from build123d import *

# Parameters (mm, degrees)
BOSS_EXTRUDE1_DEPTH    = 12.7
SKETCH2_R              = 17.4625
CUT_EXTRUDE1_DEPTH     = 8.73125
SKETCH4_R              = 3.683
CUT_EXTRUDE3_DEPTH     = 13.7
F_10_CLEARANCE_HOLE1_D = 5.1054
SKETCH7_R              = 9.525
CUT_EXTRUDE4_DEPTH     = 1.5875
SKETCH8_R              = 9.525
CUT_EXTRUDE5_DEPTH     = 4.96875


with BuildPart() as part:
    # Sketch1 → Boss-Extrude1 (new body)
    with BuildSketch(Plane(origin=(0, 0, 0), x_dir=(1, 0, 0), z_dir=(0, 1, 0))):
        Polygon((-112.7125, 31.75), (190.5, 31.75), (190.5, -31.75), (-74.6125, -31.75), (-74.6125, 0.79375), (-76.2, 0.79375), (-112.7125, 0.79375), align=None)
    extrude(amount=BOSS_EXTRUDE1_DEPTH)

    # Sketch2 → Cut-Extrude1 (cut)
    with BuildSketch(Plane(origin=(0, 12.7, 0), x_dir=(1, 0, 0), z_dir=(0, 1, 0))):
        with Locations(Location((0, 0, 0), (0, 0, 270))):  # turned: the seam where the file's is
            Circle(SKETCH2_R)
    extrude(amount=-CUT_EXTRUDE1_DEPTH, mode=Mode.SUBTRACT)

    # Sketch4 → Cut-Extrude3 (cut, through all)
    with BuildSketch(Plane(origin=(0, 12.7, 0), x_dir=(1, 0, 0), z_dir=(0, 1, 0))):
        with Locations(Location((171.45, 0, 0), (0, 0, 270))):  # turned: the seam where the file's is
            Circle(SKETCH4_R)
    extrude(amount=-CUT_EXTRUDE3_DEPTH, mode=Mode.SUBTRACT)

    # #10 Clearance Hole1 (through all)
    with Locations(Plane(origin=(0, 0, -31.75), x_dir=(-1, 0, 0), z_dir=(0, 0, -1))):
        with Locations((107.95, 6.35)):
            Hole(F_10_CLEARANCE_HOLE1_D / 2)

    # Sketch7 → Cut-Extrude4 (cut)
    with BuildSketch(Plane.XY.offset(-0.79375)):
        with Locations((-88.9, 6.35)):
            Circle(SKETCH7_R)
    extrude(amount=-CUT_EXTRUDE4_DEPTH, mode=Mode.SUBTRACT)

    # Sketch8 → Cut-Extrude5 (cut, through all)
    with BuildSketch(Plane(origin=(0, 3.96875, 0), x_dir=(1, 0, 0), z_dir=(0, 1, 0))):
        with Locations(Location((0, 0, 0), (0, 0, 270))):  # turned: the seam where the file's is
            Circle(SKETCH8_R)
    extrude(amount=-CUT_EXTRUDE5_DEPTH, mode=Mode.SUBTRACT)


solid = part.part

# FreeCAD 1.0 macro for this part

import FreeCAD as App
import Part
import Sketcher

V = App.Vector
Q = App.Units.Quantity


def add_polygon(sketch, points):
    """Adds a closed chain of lines whose ends are joined by coincident constraints."""
    first, n = sketch.GeometryCount, len(points)
    for a, b in zip(points, points[1:] + points[:1]):
        sketch.addGeometry(Part.LineSegment(App.Vector(*a, 0), App.Vector(*b, 0)), False)
    for i in range(n):
        sketch.addConstraint(Sketcher.Constraint("Coincident", first + i, 2, first + (i + 1) % n, 1))

doc = App.newDocument("Part")
body = doc.addObject("PartDesign::Body", "Body")

# Sketch on XZ plane
sketch1 = body.newObject("Sketcher::SketchObject", "Sketch")
sketch1.AttachmentSupport = (doc.getObject("XZ_Plane"), [""])
sketch1.MapMode = "FlatFace"
add_polygon(sketch1, [(190, -32), (-113, -32), (-113, -1), (-75, -1), (-75, 32), (190, 32)])  # lines 0-5
sketch1.addConstraint([
    Sketcher.Constraint("Horizontal", 0),
    Sketcher.Constraint("Vertical", 1),
    Sketcher.Constraint("Horizontal", 2),
    Sketcher.Constraint("Vertical", 3),
    Sketcher.Constraint("Horizontal", 4),
    Sketcher.Constraint("Vertical", 5),
    Sketcher.Constraint("DistanceX", 2, 1, 2, 2, Q("1.5 in")),
    Sketcher.Constraint("DistanceY", 5, 2, 5, 1, Q("2.5 in")),
    Sketcher.Constraint("DistanceX", -1, 1, 4, 2, Q("7.5 in")),
    Sketcher.Constraint("DistanceX", 0, 2, 0, 1, Q("11.9375 in")),
    Sketcher.Constraint("DistanceY", 1, 1, 1, 2, Q("1.21875 in")),
    Sketcher.Constraint("DistanceY", 0, 2, -1, 1, Q("1.25 in")),
])
pad1 = body.newObject("PartDesign::Pad", "Pad")
pad1.Profile = sketch1
pad1.Length = Q("0.5 in")
pad1.Reversed = True

# Sketch on XZ plane
sketch2 = body.newObject("Sketcher::SketchObject", "Sketch001")
sketch2.AttachmentSupport = (doc.getObject("XZ_Plane"), [""])
sketch2.MapMode = "FlatFace"
sketch2.AttachmentOffset = App.Placement(V(0, 0, -0.5 * 25.4), App.Rotation())
sketch2.addGeometry(Part.Circle(V(0, 0, 0), V(0, 0, 1), 17), False)
sketch2.addConstraint([
    Sketcher.Constraint("Coincident", 0, 3, -1, 1),
    Sketcher.Constraint("Diameter", 0, Q("1.375 in")),
])
pocket1 = body.newObject("PartDesign::Pocket", "Pocket")
pocket1.Profile = sketch2
pocket1.Length = Q("0.34375 in")
pocket1.Reversed = True

# Sketch on XZ plane
sketch3 = body.newObject("Sketcher::SketchObject", "Sketch002")
sketch3.AttachmentSupport = (doc.getObject("XZ_Plane"), [""])
sketch3.MapMode = "FlatFace"
sketch3.AttachmentOffset = App.Placement(V(0, 0, -0.5 * 25.4), App.Rotation())
sketch3.addGeometry(Part.Circle(V(171.4, 0, 0), V(0, 0, 1), 3.7), False)
sketch3.addConstraint([
    Sketcher.Constraint("PointOnObject", 0, 3, -1),
    Sketcher.Constraint("Diameter", 0, Q("0.29 in")),
    Sketcher.Constraint("DistanceX", -1, 1, 0, 3, Q("6.75 in")),
])
pocket2 = body.newObject("PartDesign::Pocket", "Pocket001")
pocket2.Profile = sketch3
pocket2.Type = "ThroughAll"
pocket2.Reversed = True

# Sketch on XY plane
sketch4 = body.newObject("Sketcher::SketchObject", "Sketch003")
sketch4.AttachmentSupport = (doc.getObject("XY_Plane"), [""])
sketch4.MapMode = "FlatFace"
sketch4.AttachmentOffset = App.Placement(V(0, 0, -1.25 * 25.4), App.Rotation())
sketch4.addGeometry(Part.Circle(V(-108, 6.3, 0), V(0, 0, 1), 2.6), False)
sketch4.addConstraint([
    Sketcher.Constraint("Diameter", 0, Q("0.201 in")),
    Sketcher.Constraint("DistanceX", 0, 3, -1, 1, Q("4.25 in")),
    Sketcher.Constraint("DistanceY", -1, 1, 0, 3, Q("0.25 in")),
])
doc.recompute()
hole = body.newObject("PartDesign::Hole", "Hole")
hole.Profile = sketch4
hole.ThreadType = "None"
hole.Diameter = Q("0.201 in")
hole.DepthType = "ThroughAll"
hole.Reversed = True

# Sketch on XY plane
sketch5 = body.newObject("Sketcher::SketchObject", "Sketch004")
sketch5.AttachmentSupport = (doc.getObject("XY_Plane"), [""])
sketch5.MapMode = "FlatFace"
sketch5.AttachmentOffset = App.Placement(V(0, 0, -0.03125 * 25.4), App.Rotation())
sketch5.addGeometry(Part.Circle(V(-89, 6, 0), V(0, 0, 1), 10), False)
sketch5.addConstraint([
    Sketcher.Constraint("Diameter", 0, Q("0.75 in")),
    Sketcher.Constraint("DistanceX", 0, 3, -1, 1, Q("3.5 in")),
    Sketcher.Constraint("DistanceY", -1, 1, 0, 3, Q("0.25 in")),
])
pocket3 = body.newObject("PartDesign::Pocket", "Pocket002")
pocket3.Profile = sketch5
pocket3.Length = Q("0.0625 in")

# Sketch on XZ plane
sketch6 = body.newObject("Sketcher::SketchObject", "Sketch005")
sketch6.AttachmentSupport = (doc.getObject("XZ_Plane"), [""])
sketch6.MapMode = "FlatFace"
sketch6.AttachmentOffset = App.Placement(V(0, 0, -0.15625 * 25.4), App.Rotation())
sketch6.addGeometry(Part.Circle(V(0, 0, 0), V(0, 0, 1), 10), False)
sketch6.addConstraint([
    Sketcher.Constraint("Coincident", 0, 3, -1, 1),
    Sketcher.Constraint("Diameter", 0, Q("0.75 in")),
])
pocket4 = body.newObject("PartDesign::Pocket", "Pocket003")
pocket4.Profile = sketch6
pocket4.Type = "ThroughAll"
pocket4.Reversed = True

doc.recompute()
